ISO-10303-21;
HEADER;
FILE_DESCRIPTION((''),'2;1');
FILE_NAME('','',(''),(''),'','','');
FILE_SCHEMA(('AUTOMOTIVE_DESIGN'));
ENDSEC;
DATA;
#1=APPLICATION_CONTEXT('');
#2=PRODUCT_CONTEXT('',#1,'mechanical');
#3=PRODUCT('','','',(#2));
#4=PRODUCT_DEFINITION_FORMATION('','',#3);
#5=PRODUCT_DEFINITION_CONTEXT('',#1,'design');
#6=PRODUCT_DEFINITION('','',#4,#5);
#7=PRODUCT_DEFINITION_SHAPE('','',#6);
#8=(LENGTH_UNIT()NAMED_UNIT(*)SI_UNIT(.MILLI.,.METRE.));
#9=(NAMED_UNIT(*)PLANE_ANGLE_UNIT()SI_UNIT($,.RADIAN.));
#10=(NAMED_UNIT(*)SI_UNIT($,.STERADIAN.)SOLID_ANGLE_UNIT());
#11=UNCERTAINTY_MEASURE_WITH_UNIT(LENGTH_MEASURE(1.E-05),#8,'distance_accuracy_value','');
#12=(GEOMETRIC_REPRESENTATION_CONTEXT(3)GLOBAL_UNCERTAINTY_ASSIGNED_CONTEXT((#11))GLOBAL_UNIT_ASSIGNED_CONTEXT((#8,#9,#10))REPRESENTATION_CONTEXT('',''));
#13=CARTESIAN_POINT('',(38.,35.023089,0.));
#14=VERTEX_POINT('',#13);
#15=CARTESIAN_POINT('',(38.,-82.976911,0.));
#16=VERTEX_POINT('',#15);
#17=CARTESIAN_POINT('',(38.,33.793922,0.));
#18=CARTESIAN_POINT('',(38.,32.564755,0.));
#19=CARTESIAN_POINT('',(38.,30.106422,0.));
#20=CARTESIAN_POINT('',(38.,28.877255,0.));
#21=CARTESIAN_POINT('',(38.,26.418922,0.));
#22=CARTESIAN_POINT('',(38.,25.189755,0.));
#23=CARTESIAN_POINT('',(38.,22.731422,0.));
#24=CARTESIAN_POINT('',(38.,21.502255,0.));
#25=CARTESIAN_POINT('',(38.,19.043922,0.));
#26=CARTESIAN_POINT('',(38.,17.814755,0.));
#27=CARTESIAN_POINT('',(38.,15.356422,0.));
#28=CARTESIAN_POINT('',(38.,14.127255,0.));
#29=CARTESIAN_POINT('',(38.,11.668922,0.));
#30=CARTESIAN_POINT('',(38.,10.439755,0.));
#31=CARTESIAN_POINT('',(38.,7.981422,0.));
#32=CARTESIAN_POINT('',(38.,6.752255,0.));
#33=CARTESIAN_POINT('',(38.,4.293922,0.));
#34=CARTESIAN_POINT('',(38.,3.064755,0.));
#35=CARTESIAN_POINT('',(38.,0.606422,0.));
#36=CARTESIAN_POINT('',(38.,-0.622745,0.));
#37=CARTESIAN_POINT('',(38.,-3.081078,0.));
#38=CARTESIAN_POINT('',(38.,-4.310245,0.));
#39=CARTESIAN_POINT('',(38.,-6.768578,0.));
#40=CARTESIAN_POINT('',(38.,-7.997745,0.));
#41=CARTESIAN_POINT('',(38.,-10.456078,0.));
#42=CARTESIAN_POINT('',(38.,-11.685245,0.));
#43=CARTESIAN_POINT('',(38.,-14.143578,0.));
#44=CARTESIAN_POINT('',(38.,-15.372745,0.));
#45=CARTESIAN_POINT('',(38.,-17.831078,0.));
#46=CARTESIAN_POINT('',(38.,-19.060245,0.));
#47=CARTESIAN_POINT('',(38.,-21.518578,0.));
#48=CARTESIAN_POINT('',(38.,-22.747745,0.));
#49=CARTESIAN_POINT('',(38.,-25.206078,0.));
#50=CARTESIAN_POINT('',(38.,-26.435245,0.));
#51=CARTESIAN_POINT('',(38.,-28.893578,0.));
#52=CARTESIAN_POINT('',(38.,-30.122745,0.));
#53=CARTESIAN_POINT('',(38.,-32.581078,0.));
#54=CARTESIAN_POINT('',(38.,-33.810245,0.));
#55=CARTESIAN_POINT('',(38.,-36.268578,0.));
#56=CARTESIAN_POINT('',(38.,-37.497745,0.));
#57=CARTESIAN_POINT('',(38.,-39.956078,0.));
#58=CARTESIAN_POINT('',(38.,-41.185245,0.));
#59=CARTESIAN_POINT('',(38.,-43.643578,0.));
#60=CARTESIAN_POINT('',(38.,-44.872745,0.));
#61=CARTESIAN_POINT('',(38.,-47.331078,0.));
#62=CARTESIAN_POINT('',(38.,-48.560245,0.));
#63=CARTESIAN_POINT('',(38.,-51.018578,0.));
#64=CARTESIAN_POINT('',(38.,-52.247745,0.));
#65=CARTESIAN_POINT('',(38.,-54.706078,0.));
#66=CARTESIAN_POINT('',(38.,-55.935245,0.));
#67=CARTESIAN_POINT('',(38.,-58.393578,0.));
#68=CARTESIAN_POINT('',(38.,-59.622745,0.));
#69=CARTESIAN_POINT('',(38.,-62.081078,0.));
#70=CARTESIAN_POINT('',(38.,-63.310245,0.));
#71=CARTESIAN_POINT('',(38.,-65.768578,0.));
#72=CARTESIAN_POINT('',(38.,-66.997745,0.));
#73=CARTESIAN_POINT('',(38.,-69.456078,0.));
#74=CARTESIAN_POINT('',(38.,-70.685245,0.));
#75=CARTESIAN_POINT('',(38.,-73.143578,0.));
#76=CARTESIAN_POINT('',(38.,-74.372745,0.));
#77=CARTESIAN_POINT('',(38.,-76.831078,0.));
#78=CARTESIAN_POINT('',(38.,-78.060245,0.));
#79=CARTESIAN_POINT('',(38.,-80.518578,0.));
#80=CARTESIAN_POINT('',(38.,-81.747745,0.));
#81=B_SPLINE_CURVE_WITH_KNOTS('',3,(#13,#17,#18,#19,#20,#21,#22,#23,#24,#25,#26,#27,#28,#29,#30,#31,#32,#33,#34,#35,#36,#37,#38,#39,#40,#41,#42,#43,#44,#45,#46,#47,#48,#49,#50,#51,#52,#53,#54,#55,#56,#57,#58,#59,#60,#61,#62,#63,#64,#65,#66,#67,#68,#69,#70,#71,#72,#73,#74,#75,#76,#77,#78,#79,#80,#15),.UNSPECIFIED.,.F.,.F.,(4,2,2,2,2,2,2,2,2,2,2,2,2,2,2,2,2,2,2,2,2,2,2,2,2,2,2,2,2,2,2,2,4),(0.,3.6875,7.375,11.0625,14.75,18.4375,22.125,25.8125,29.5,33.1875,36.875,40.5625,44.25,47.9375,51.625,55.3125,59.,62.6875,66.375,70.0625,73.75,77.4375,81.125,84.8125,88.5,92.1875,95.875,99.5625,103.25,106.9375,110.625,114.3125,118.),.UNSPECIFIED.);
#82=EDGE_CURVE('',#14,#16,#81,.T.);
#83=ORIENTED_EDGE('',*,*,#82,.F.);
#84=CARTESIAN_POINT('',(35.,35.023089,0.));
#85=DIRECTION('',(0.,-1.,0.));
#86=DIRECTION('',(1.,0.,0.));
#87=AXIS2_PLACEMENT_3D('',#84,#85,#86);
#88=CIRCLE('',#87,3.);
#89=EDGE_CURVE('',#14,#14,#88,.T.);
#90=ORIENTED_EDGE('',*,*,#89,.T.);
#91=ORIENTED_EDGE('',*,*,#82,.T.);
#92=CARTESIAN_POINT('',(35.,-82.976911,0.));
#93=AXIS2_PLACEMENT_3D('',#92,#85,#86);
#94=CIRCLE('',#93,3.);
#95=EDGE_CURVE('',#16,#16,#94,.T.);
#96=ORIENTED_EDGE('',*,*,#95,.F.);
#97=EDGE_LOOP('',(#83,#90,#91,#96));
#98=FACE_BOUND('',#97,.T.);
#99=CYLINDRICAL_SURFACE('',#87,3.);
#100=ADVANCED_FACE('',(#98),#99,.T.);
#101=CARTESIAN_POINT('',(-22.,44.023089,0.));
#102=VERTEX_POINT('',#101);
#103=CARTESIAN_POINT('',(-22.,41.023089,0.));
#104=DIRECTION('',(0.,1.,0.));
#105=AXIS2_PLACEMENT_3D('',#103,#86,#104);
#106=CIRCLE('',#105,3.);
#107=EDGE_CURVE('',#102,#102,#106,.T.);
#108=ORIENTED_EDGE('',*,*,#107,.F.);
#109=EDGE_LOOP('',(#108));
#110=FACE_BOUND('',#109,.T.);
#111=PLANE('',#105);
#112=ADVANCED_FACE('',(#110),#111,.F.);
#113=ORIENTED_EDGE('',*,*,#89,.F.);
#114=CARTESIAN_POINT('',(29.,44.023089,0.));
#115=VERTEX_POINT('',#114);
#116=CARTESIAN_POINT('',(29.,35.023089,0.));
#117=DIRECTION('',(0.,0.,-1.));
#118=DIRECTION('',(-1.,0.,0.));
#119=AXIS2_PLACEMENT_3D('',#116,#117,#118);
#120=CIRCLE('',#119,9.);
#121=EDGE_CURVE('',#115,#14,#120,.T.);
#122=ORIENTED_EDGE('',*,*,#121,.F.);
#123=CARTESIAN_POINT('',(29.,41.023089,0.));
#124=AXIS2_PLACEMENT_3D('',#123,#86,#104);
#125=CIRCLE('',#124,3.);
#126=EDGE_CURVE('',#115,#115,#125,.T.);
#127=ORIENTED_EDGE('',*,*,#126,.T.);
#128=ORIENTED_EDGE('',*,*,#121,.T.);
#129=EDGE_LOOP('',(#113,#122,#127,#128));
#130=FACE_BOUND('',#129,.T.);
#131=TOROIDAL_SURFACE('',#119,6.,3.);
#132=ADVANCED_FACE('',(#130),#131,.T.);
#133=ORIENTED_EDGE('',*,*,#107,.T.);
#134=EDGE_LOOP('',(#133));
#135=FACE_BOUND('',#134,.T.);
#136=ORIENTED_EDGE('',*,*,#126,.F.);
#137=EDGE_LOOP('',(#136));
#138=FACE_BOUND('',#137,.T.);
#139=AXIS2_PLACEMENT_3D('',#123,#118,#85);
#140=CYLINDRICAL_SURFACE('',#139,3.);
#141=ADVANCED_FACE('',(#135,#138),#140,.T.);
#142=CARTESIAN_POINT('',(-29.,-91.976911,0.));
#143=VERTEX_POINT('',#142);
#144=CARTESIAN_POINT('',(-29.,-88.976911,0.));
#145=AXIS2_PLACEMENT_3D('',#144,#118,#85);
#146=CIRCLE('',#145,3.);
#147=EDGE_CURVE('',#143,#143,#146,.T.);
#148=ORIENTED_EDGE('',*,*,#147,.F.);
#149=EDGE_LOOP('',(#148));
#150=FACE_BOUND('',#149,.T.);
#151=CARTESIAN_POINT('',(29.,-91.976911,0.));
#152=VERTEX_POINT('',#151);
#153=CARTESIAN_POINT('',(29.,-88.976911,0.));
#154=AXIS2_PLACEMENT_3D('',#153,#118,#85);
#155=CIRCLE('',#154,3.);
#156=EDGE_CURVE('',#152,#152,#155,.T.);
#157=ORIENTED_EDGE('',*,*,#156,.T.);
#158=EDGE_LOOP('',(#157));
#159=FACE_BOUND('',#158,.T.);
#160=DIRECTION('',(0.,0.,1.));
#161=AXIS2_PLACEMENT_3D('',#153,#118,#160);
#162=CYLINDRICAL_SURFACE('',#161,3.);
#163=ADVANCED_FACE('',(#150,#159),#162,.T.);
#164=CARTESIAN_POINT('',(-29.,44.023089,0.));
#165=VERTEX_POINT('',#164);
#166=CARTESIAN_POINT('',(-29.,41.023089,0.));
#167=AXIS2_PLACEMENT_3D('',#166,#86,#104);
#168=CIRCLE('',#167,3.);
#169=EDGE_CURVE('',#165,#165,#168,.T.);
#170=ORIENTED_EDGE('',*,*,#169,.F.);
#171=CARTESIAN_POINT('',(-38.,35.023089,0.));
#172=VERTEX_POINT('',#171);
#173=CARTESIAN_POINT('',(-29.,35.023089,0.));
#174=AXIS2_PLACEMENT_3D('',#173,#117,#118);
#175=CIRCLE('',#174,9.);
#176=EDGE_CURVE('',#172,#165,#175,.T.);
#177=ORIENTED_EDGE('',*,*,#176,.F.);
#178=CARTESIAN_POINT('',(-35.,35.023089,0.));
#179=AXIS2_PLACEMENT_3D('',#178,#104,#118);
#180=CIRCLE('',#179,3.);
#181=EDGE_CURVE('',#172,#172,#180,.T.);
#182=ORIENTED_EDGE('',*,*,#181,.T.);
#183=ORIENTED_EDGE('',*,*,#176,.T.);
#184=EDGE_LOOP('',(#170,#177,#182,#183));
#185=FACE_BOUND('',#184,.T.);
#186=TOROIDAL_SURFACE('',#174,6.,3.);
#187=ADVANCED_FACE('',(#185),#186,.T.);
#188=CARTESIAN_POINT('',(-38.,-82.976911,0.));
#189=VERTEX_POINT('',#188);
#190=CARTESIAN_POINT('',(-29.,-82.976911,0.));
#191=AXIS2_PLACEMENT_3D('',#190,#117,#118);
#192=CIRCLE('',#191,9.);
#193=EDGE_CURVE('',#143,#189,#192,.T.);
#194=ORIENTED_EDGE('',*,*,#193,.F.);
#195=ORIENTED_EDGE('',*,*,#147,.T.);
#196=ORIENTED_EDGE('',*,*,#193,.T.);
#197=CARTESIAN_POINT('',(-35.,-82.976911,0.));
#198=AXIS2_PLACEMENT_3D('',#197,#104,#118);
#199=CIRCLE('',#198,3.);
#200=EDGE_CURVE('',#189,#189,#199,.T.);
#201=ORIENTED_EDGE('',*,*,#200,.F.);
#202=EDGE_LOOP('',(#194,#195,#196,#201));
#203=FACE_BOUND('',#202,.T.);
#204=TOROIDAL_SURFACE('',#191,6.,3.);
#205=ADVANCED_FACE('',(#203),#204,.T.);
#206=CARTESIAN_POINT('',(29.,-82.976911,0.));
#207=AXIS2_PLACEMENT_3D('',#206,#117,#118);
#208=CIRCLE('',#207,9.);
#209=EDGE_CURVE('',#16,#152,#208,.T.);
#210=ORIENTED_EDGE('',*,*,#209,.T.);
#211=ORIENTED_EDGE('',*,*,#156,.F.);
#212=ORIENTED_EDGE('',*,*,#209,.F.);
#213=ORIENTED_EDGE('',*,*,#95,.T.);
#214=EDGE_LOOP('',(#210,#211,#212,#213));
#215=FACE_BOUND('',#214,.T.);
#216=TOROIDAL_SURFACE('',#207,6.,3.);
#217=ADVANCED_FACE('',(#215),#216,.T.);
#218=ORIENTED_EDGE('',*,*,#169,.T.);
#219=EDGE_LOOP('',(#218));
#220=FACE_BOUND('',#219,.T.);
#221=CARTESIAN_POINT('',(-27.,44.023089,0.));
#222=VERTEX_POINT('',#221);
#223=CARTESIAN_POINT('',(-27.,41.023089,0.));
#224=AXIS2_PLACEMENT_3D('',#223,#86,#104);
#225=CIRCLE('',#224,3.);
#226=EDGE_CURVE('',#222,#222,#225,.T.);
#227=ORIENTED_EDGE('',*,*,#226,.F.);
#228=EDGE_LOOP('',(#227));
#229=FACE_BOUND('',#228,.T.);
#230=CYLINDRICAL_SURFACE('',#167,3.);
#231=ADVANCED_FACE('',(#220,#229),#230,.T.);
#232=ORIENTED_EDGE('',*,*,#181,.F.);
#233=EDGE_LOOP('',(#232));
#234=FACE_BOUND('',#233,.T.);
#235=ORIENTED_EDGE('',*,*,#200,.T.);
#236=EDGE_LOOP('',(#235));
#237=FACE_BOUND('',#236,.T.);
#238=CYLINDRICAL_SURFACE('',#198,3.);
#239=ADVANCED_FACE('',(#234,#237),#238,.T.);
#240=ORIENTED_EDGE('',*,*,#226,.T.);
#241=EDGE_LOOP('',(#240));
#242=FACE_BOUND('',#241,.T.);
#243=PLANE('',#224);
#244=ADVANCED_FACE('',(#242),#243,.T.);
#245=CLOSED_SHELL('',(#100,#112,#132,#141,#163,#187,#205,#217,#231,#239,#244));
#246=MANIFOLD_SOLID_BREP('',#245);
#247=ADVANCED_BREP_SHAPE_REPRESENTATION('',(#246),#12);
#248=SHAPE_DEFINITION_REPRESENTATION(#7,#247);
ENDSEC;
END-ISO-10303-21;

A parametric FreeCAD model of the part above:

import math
import FreeCAD as App
import Part
import Sketcher

doc = App.newDocument("Part")
params = doc.addObject("Spreadsheet::Sheet", "Params")
for row, (alias, value) in enumerate([
    ("sketch1_diameter", "6 mm"),
    ("sketch2_radius", "6 mm"),
    ("sketch2_width", "51 mm"),
    ("sketch2_width2", "58 mm"),
    ("sketch2_width3", "2 mm"),
    ("sketch2_height", "118 mm"),
], start=1):
    params.set(f"A{row}", alias)
    params.set(f"B{row}", "=" + value)
    params.setAlias(f"B{row}", alias)

body = doc.addObject("PartDesign::Body", "Body")

# Sketch on YZ plane
sketch1 = doc.addObject("Sketcher::SketchObject", "Sketch")
body.addObject(sketch1)
sketch1.AttachmentSupport = (doc.YZ_Plane, [""])
sketch1.MapMode = "FlatFace"
sketch1.AttachmentOffset = App.Placement(App.Vector(0, 0, -22), App.Rotation())
sketch1.addGeometry(Part.Circle(App.Vector(41, 0, 0), App.Vector(0, 0, 1), 3), False)
sketch1.addConstraint([
    Sketcher.Constraint("PointOnObject", 0, 3, -1),
    Sketcher.Constraint("Diameter", 0, 6.0),
    Sketcher.Constraint("DistanceX", -1, 1, 0, 3, 41.023089),
])
sketch1.setExpression("Constraints[1]", "Params.sketch1_diameter")

# Sketch on XY plane
sketch2 = doc.addObject("Sketcher::SketchObject", "Sketch001")
body.addObject(sketch2)
sketch2.AttachmentSupport = (doc.XY_Plane, [""])
sketch2.MapMode = "FlatFace"
sketch2.addGeometry([
    Part.LineSegment(App.Vector(-22, 41, 0), App.Vector(29, 41, 0)),  # 0
    Part.ArcOfCircle(Part.Circle(App.Vector(29, 35, 0), App.Vector(0, 0, 1), 6), math.radians(0), math.radians(90)),  # 1
    Part.LineSegment(App.Vector(35, 35, 0), App.Vector(35, -83, 0)),  # 2
    Part.ArcOfCircle(Part.Circle(App.Vector(29, -83, 0), App.Vector(0, 0, 1), 6), math.radians(-90), math.radians(0)),  # 3
    Part.LineSegment(App.Vector(29, -89, 0), App.Vector(-29, -89, 0)),  # 4
    Part.ArcOfCircle(Part.Circle(App.Vector(-29, -83, 0), App.Vector(0, 0, 1), 6), math.radians(180), math.radians(270)),  # 5
    Part.LineSegment(App.Vector(-35, -83, 0), App.Vector(-35, 35, 0)),  # 6
    Part.ArcOfCircle(Part.Circle(App.Vector(-29, 35, 0), App.Vector(0, 0, 1), 6), math.radians(90), math.radians(180)),  # 7
    Part.LineSegment(App.Vector(-29, 41, 0), App.Vector(-27, 41, 0)),  # 8
], False)
sketch2.addConstraint([
    Sketcher.Constraint("Tangent", 0, 2, 1, 2),
    Sketcher.Constraint("Tangent", 1, 1, 2, 1),
    Sketcher.Constraint("Tangent", 2, 2, 3, 2),
    Sketcher.Constraint("Tangent", 3, 1, 4, 1),
    Sketcher.Constraint("Tangent", 4, 2, 5, 2),
    Sketcher.Constraint("Tangent", 5, 1, 6, 1),
    Sketcher.Constraint("Tangent", 6, 2, 7, 2),
    Sketcher.Constraint("Tangent", 7, 1, 8, 1),
    Sketcher.Constraint("Horizontal", 0),
    Sketcher.Constraint("Vertical", 2),
    Sketcher.Constraint("Horizontal", 4),
    Sketcher.Constraint("Vertical", 6),
    Sketcher.Constraint("Horizontal", 8),
    Sketcher.Constraint("Equal", 1, 3),
    Sketcher.Constraint("Equal", 3, 5),
    Sketcher.Constraint("Equal", 5, 7),
    Sketcher.Constraint("Symmetric", 1, 3, 7, 3, -2),
    Sketcher.Constraint("Radius", 1, 6.0),
    Sketcher.Constraint("DistanceX", 0, 1, 0, 2, 51.0),
    Sketcher.Constraint("DistanceX", 4, 2, 4, 1, 58.0),
    Sketcher.Constraint("DistanceX", 8, 1, 8, 2, 2.0),
    Sketcher.Constraint("DistanceY", 2, 2, 2, 1, 118.0),
    Sketcher.Constraint("DistanceY", -1, 1, 1, 3, 35.023089),
])
sketch2.setExpression("Constraints[17]", "Params.sketch2_radius")
sketch2.setExpression("Constraints[18]", "Params.sketch2_width")
sketch2.setExpression("Constraints[19]", "Params.sketch2_width2")
sketch2.setExpression("Constraints[20]", "Params.sketch2_width3")
sketch2.setExpression("Constraints[21]", "Params.sketch2_height")
doc.recompute()

additivepipe = doc.addObject("PartDesign::AdditivePipe", "AdditivePipe")
body.addObject(additivepipe)
additivepipe.Profile = sketch1
additivepipe.Spine = (sketch2, ["Edge1", "Edge2", "Edge3", "Edge4", "Edge5", "Edge6", "Edge7", "Edge8", "Edge9"])

doc.recompute()
